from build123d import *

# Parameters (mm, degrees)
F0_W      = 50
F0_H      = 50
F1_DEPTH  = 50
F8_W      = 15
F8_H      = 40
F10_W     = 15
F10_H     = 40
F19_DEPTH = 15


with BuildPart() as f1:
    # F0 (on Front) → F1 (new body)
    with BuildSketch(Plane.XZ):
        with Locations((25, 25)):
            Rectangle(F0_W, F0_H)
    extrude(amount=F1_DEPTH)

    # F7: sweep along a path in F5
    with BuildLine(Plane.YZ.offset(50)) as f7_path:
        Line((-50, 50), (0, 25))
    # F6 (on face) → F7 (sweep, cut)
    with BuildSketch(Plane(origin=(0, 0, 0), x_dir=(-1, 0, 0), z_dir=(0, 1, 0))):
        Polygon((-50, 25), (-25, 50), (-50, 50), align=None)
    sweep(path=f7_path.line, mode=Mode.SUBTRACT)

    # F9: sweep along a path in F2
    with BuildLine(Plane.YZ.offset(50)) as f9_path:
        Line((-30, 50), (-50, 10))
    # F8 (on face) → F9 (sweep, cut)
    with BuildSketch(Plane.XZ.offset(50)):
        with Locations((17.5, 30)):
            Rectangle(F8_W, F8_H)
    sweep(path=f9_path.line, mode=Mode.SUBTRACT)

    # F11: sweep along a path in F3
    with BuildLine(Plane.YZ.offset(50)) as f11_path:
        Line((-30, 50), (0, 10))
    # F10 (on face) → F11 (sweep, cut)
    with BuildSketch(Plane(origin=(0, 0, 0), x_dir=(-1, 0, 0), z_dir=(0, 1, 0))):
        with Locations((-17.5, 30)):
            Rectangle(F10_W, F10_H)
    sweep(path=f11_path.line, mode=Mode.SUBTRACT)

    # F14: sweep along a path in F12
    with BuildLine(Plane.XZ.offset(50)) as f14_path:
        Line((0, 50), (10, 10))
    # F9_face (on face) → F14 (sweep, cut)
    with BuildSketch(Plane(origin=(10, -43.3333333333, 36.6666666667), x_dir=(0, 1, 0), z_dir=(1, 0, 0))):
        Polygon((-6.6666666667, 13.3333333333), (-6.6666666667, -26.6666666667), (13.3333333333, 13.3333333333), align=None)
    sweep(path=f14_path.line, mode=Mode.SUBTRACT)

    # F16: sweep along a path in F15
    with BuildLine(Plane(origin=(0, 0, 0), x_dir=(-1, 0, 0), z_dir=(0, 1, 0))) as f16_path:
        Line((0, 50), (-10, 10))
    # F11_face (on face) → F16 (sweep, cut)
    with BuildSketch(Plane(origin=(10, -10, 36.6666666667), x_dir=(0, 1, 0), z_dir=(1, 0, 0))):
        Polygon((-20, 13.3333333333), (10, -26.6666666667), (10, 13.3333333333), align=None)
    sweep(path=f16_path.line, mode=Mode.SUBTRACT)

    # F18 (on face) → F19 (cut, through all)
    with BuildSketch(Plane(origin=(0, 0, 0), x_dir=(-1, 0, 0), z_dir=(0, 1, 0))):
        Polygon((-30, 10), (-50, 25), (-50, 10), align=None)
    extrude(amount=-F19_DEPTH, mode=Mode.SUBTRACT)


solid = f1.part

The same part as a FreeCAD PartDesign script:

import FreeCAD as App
import Part
import Sketcher
from FreeCAD import Vector


def add_polygon(sketch, points):
    """Adds a closed chain of lines whose ends are joined by coincident constraints."""
    first, n = sketch.GeometryCount, len(points)
    for a, b in zip(points, points[1:] + points[:1]):
        sketch.addGeometry(Part.LineSegment(App.Vector(*a, 0), App.Vector(*b, 0)), False)
    for i in range(n):
        sketch.addConstraint(Sketcher.Constraint("Coincident", first + i, 2, first + (i + 1) % n, 1))

doc = App.newDocument("Part")
body = doc.addObject("PartDesign::Body", "Body")

# Sketch on XZ plane
sketch1 = doc.addObject("Sketcher::SketchObject", "Sketch")
body.addObject(sketch1)
sketch1.AttachmentSupport = (doc.XZ_Plane, [""])
sketch1.MapMode = "FlatFace"
add_polygon(sketch1, [(0, 50), (0, 0), (50, 0), (50, 50)])  # lines 0-3
sketch1.addConstraint(Sketcher.Constraint("Vertical", 0))
sketch1.addConstraint(Sketcher.Constraint("Horizontal", 1))
sketch1.addConstraint(Sketcher.Constraint("Vertical", 2))
sketch1.addConstraint(Sketcher.Constraint("Horizontal", 3))
sketch1.addConstraint(Sketcher.Constraint("Coincident", 0, 2, -1, 1))
sketch1.addConstraint(Sketcher.Constraint("Equal", 3, 0))
sketch1.addConstraint(Sketcher.Constraint("DistanceX", 1, 1, 1, 2, 50.0))
pad1 = doc.addObject("PartDesign::Pad", "Pad")
body.addObject(pad1)
pad1.Profile = sketch1
pad1.Length = 50

# Sketch on XZ plane
sketch2 = doc.addObject("Sketcher::SketchObject", "Sketch001")
body.addObject(sketch2)
sketch2.AttachmentSupport = (doc.XZ_Plane, [""])
sketch2.MapMode = "FlatFace"
add_polygon(sketch2, [(50, 25), (25, 50), (50, 50)])  # lines 0-2
sketch2.addConstraint(Sketcher.Constraint("Horizontal", 1))
sketch2.addConstraint(Sketcher.Constraint("Vertical", 2))
sketch2.addConstraint(Sketcher.Constraint("Equal", 1, 2))
sketch2.addConstraint(Sketcher.Constraint("DistanceX", 1, 1, 1, 2, 25.0))
sketch2.addConstraint(Sketcher.Constraint("DistanceX", -1, 1, 0, 2, 25.0))
sketch2.addConstraint(Sketcher.Constraint("DistanceY", -1, 1, 0, 2, 50.0))

# Sketch on an angled plane
sketch3 = doc.addObject("Sketcher::SketchObject", "Sketch002")
body.addObject(sketch3)
sketch3.Placement = App.Placement(Vector(0, 10, 20), App.Rotation(Vector(0, -0.894427191, 0.447213595), Vector(1, 0, 0), Vector(0, 0.447213595, 0.894427191), "ZXY"))
sketch3.addGeometry(Part.LineSegment(Vector(67, 50, 0), Vector(11, 50, 0)), False)
sketch3.addConstraint(Sketcher.Constraint("Horizontal", 0))
sketch3.addConstraint(Sketcher.Constraint("DistanceY", -1, 1, 0, 1, 50.0))
sketch3.addConstraint(Sketcher.Constraint("DistanceX", 0, 2, 0, 1, 55.901699))
sketch3.addConstraint(Sketcher.Constraint("DistanceX", -1, 1, 0, 1, 67.082039))
doc.recompute()

subtractivepipe = doc.addObject("PartDesign::SubtractivePipe", "SubtractivePipe")
body.addObject(subtractivepipe)
subtractivepipe.Profile = sketch2
subtractivepipe.Spine = (sketch3, ["Edge1"])

# Sketch on XZ plane
sketch4 = doc.addObject("Sketcher::SketchObject", "Sketch003")
body.addObject(sketch4)
sketch4.AttachmentSupport = (doc.XZ_Plane, [""])
sketch4.MapMode = "FlatFace"
sketch4.AttachmentOffset = App.Placement(Vector(0, 0, 50), App.Rotation())
add_polygon(sketch4, [(10, 50), (10, 10), (25, 10), (25, 50)])  # lines 0-3
sketch4.addConstraint(Sketcher.Constraint("Vertical", 0))
sketch4.addConstraint(Sketcher.Constraint("Horizontal", 1))
sketch4.addConstraint(Sketcher.Constraint("Vertical", 2))
sketch4.addConstraint(Sketcher.Constraint("Horizontal", 3))
sketch4.addConstraint(Sketcher.Constraint("DistanceX", 1, 1, 1, 2, 15.0))
sketch4.addConstraint(Sketcher.Constraint("DistanceY", 0, 2, 0, 1, 40.0))
sketch4.addConstraint(Sketcher.Constraint("DistanceX", -1, 1, 0, 2, 10.0))
sketch4.addConstraint(Sketcher.Constraint("DistanceY", -1, 1, 0, 2, 10.0))

# Sketch on an angled plane
sketch5 = doc.addObject("Sketcher::SketchObject", "Sketch004")
body.addObject(sketch5)
sketch5.Placement = App.Placement(Vector(0, -44, 22), App.Rotation(Vector(0, 0.447213595, 0.894427191), Vector(1, 0, 0), Vector(0, 0.894427191, -0.447213595), "ZXY"))
sketch5.addGeometry(Part.LineSegment(Vector(31, 50, 0), Vector(-13, 50, 0)), False)
sketch5.addConstraint(Sketcher.Constraint("Horizontal", 0))
sketch5.addConstraint(Sketcher.Constraint("DistanceY", -1, 1, 0, 1, 50.0))
sketch5.addConstraint(Sketcher.Constraint("DistanceX", 0, 2, 0, 1, 44.72136))
sketch5.addConstraint(Sketcher.Constraint("DistanceX", -1, 1, 0, 1, 31.304952))
doc.recompute()

subtractivepipe2 = doc.addObject("PartDesign::SubtractivePipe", "SubtractivePipe001")
body.addObject(subtractivepipe2)
subtractivepipe2.Profile = sketch4
subtractivepipe2.Spine = (sketch5, ["Edge1"])

# Sketch on XZ plane
sketch6 = doc.addObject("Sketcher::SketchObject", "Sketch005")
body.addObject(sketch6)
sketch6.AttachmentSupport = (doc.XZ_Plane, [""])
sketch6.MapMode = "FlatFace"
add_polygon(sketch6, [(25, 50), (25, 10), (10, 10), (10, 50)])  # lines 0-3
sketch6.addConstraint(Sketcher.Constraint("Vertical", 0))
sketch6.addConstraint(Sketcher.Constraint("Horizontal", 1))
sketch6.addConstraint(Sketcher.Constraint("Vertical", 2))
sketch6.addConstraint(Sketcher.Constraint("Horizontal", 3))
sketch6.addConstraint(Sketcher.Constraint("DistanceX", 1, 2, 1, 1, 15.0))
sketch6.addConstraint(Sketcher.Constraint("DistanceY", 0, 2, 0, 1, 40.0))
sketch6.addConstraint(Sketcher.Constraint("DistanceX", -1, 1, 0, 2, 25.0))
sketch6.addConstraint(Sketcher.Constraint("DistanceY", -1, 1, 0, 2, 10.0))

# Sketch on an angled plane
sketch7 = doc.addObject("Sketcher::SketchObject", "Sketch006")
body.addObject(sketch7)
sketch7.Placement = App.Placement(Vector(0, 4.8, 3.6), App.Rotation(Vector(0, 0.6, -0.8), Vector(1, 0, 0), Vector(0, -0.8, -0.6), "ZXY"))
sketch7.addGeometry(Part.LineSegment(Vector(-58, 50, 0), Vector(-8, 50, 0)), False)
sketch7.addConstraint(Sketcher.Constraint("Horizontal", 0))
sketch7.addConstraint(Sketcher.Constraint("DistanceX", 0, 1, 0, 2, 50.0))
sketch7.addConstraint(Sketcher.Constraint("DistanceX", 0, 1, -1, 1, 58.0))
sketch7.addConstraint(Sketcher.Constraint("DistanceY", -1, 1, 0, 1, 50.0))
doc.recompute()

subtractivepipe3 = doc.addObject("PartDesign::SubtractivePipe", "SubtractivePipe002")
body.addObject(subtractivepipe3)
subtractivepipe3.Profile = sketch6
subtractivepipe3.Spine = (sketch7, ["Edge1"])

# Sketch on YZ plane
sketch8 = doc.addObject("Sketcher::SketchObject", "Sketch007")
body.addObject(sketch8)
sketch8.AttachmentSupport = (doc.YZ_Plane, [""])
sketch8.MapMode = "FlatFace"
sketch8.AttachmentOffset = App.Placement(Vector(0, 0, 10), App.Rotation())
add_polygon(sketch8, [(-50, 50), (-50, 10), (-30, 50)])  # lines 0-2
sketch8.addConstraint(Sketcher.Constraint("Vertical", 0))
sketch8.addConstraint(Sketcher.Constraint("Horizontal", 2))
sketch8.addConstraint(Sketcher.Constraint("DistanceX", 2, 2, 2, 1, 20.0))
sketch8.addConstraint(Sketcher.Constraint("DistanceY", 0, 2, 0, 1, 40.0))
sketch8.addConstraint(Sketcher.Constraint("DistanceX", 0, 2, -1, 1, 50.0))
sketch8.addConstraint(Sketcher.Constraint("DistanceY", -1, 1, 0, 2, 10.0))

# Sketch on an angled plane
sketch9 = doc.addObject("Sketcher::SketchObject", "Sketch008")
body.addObject(sketch9)
sketch9.Placement = App.Placement(Vector(11.764706, 0, 2.941176), App.Rotation(Vector(0.242535625, 0, -0.9701425), Vector(0, 1, 0), Vector(0.9701425, 0, 0.242535625), "ZXY"))
sketch9.addGeometry(Part.LineSegment(Vector(-49, -50, 0), Vector(-7, -50, 0)), False)
sketch9.addConstraint(Sketcher.Constraint("Horizontal", 0))
sketch9.addConstraint(Sketcher.Constraint("DistanceY", 0, 1, -1, 1, 50.0))
sketch9.addConstraint(Sketcher.Constraint("DistanceX", 0, 1, 0, 2, 41.231056))
sketch9.addConstraint(Sketcher.Constraint("DistanceX", 0, 2, -1, 1, 7.276069))
doc.recompute()

subtractivepipe4 = doc.addObject("PartDesign::SubtractivePipe", "SubtractivePipe003")
body.addObject(subtractivepipe4)
subtractivepipe4.Profile = sketch8
subtractivepipe4.Spine = (sketch9, ["Edge1"])

# Sketch on YZ plane
sketch10 = doc.addObject("Sketcher::SketchObject", "Sketch009")
body.addObject(sketch10)
sketch10.AttachmentSupport = (doc.YZ_Plane, [""])
sketch10.MapMode = "FlatFace"
sketch10.AttachmentOffset = App.Placement(Vector(0, 0, 10), App.Rotation())
add_polygon(sketch10, [(-30, 50), (0, 10), (0, 50)])  # lines 0-2
sketch10.addConstraint(Sketcher.Constraint("Vertical", 1))
sketch10.addConstraint(Sketcher.Constraint("Horizontal", 2))
sketch10.addConstraint(Sketcher.Constraint("PointOnObject", 0, 2, -2))
sketch10.addConstraint(Sketcher.Constraint("DistanceX", 2, 2, 2, 1, 30.0))
sketch10.addConstraint(Sketcher.Constraint("DistanceY", 1, 1, 1, 2, 40.0))
sketch10.addConstraint(Sketcher.Constraint("DistanceY", -1, 1, 0, 2, 10.0))

# Sketch on an angled plane
sketch11 = doc.addObject("Sketcher::SketchObject", "Sketch010")
body.addObject(sketch11)
sketch11.Placement = App.Placement(Vector(11.764706, 0, 2.941176), App.Rotation(Vector(0.242535625, 0, -0.9701425), Vector(0, 1, 0), Vector(0.9701425, 0, 0.242535625), "ZXY"))
sketch11.addGeometry(Part.LineSegment(Vector(-49, 0, 0), Vector(-7, 0, 0)), False)
sketch11.addConstraint(Sketcher.Constraint("Horizontal", 0))
sketch11.addConstraint(Sketcher.Constraint("PointOnObject", 0, 1, -1))
sketch11.addConstraint(Sketcher.Constraint("DistanceX", 0, 1, 0, 2, 41.231056))
sketch11.addConstraint(Sketcher.Constraint("DistanceX", 0, 2, -1, 1, 7.276069))
doc.recompute()

subtractivepipe5 = doc.addObject("PartDesign::SubtractivePipe", "SubtractivePipe004")
body.addObject(subtractivepipe5)
subtractivepipe5.Profile = sketch10
subtractivepipe5.Spine = (sketch11, ["Edge1"])

# Sketch on XZ plane
sketch12 = doc.addObject("Sketcher::SketchObject", "Sketch011")
body.addObject(sketch12)
sketch12.AttachmentSupport = (doc.XZ_Plane, [""])
sketch12.MapMode = "FlatFace"
add_polygon(sketch12, [(30, 10), (50, 25), (50, 10)])  # lines 0-2
sketch12.addConstraint(Sketcher.Constraint("Vertical", 1))
sketch12.addConstraint(Sketcher.Constraint("Horizontal", 2))
sketch12.addConstraint(Sketcher.Constraint("DistanceX", 2, 2, 2, 1, 20.0))
sketch12.addConstraint(Sketcher.Constraint("DistanceY", 1, 2, 1, 1, 15.0))
sketch12.addConstraint(Sketcher.Constraint("DistanceX", -1, 1, 0, 2, 50.0))
sketch12.addConstraint(Sketcher.Constraint("DistanceY", -1, 1, 0, 2, 25.0))
pocket1 = doc.addObject("PartDesign::Pocket", "Pocket")
body.addObject(pocket1)
pocket1.Profile = sketch12
pocket1.Length = 15
pocket1.Reversed = True

doc.recompute()
